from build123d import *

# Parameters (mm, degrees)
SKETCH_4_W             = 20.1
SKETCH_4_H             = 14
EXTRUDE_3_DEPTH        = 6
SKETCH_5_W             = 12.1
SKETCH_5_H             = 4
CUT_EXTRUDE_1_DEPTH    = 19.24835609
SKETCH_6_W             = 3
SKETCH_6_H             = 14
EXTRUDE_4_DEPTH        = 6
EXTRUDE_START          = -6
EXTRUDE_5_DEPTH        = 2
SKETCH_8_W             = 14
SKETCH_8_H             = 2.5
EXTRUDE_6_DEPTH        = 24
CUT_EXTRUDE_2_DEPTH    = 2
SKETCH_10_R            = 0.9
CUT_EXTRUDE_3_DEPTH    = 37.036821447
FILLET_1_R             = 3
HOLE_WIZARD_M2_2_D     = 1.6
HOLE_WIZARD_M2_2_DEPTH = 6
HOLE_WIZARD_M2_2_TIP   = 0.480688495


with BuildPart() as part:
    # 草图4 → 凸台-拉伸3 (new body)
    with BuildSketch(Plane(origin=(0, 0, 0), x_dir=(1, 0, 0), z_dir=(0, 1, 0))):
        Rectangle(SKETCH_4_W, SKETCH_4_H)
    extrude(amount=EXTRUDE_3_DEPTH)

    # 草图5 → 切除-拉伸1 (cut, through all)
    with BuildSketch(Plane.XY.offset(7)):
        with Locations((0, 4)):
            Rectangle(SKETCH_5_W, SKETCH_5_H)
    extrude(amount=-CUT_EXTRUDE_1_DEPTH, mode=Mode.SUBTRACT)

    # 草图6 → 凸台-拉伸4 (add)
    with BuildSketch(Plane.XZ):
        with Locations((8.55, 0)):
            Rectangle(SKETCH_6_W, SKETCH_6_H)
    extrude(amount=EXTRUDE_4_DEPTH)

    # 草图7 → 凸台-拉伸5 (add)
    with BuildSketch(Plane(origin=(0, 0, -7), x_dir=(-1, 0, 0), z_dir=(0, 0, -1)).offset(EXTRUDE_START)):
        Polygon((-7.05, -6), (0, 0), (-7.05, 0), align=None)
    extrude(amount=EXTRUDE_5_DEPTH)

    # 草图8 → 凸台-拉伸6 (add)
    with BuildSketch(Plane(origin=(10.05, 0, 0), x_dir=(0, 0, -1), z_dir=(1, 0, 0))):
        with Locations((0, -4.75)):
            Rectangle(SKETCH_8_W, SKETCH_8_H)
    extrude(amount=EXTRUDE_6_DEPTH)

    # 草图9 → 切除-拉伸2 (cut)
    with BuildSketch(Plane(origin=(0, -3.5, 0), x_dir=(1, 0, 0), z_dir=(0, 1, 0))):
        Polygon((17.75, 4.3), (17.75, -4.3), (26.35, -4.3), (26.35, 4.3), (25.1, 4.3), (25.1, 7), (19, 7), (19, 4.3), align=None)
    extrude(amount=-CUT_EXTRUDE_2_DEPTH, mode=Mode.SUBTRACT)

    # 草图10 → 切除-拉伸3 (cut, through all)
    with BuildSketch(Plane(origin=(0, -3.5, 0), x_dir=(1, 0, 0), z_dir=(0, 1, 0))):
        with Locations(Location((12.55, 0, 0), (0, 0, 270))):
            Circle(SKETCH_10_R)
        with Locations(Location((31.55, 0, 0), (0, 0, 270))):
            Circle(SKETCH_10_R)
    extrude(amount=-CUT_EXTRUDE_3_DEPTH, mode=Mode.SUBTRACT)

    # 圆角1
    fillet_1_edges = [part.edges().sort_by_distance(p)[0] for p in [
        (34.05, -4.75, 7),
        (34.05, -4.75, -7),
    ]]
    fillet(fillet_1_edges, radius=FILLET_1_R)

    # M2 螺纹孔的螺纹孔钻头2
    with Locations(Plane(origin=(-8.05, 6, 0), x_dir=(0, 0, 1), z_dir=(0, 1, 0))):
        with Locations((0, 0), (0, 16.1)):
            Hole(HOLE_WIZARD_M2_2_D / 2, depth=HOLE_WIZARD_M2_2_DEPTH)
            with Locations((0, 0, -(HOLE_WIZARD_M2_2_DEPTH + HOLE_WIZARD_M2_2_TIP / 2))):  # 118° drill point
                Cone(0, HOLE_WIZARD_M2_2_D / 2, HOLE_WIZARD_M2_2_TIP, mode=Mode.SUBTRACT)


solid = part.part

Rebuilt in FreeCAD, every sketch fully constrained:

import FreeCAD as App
import Part
import Sketcher

V = App.Vector
Q = App.Units.Quantity


def edges_at(feature, points):
    """Names of the edges that pass closest to the given points."""
    edges = feature.Shape.Edges
    near = lambda p: min(range(len(edges)), key=lambda i: edges[i].distToShape(Part.Vertex(*p))[0])
    return sorted({f"Edge{near(p) + 1}" for p in points})

doc = App.newDocument("Part")
body = doc.addObject("PartDesign::Body", "Body")

sketch1 = doc.addObject("Sketcher::SketchObject", "Sketch")
body.addObject(sketch1)
sketch1.AttachmentSupport = (doc.XZ_Plane, [""])
sketch1.MapMode = "FlatFace"
sketch1.addGeometry([
    Part.LineSegment(V(-10, -7, 0), V(-10, 7, 0)),
    Part.LineSegment(V(-10, 7, 0), V(10, 7, 0)),
    Part.LineSegment(V(10, 7, 0), V(10, -7, 0)),
    Part.LineSegment(V(10, -7, 0), V(-10, -7, 0)),
], False)
sketch1.addConstraint([
    Sketcher.Constraint("Coincident", 0, 2, 1, 1),
    Sketcher.Constraint("Coincident", 1, 2, 2, 1),
    Sketcher.Constraint("Coincident", 2, 2, 3, 1),
    Sketcher.Constraint("Coincident", 3, 2, 0, 1),
    Sketcher.Constraint("Vertical", 0),
    Sketcher.Constraint("Horizontal", 1),
    Sketcher.Constraint("Vertical", 2),
    Sketcher.Constraint("Horizontal", 3),
    Sketcher.Constraint("Symmetric", 0, 2, 2, 2, -1, 1),
    Sketcher.Constraint("DistanceY", 0, 1, 0, 2, Q("14 mm")),
    Sketcher.Constraint("DistanceX", 1, 1, 1, 2, Q("20.1 mm")),
])
pad1 = doc.addObject("PartDesign::Pad", "Pad")
body.addObject(pad1)
pad1.Profile = sketch1
pad1.Length = 6
pad1.Reversed = True

sketch2 = doc.addObject("Sketcher::SketchObject", "Sketch001")
body.addObject(sketch2)
sketch2.AttachmentSupport = (doc.XY_Plane, [""])
sketch2.MapMode = "FlatFace"
sketch2.AttachmentOffset = App.Placement(V(0, 0, 7), App.Rotation())
sketch2.addGeometry([
    Part.LineSegment(V(-6, 6, 0), V(-6, 2, 0)),
    Part.LineSegment(V(-6, 2, 0), V(6, 2, 0)),
    Part.LineSegment(V(6, 2, 0), V(6, 6, 0)),
    Part.LineSegment(V(6, 6, 0), V(-6, 6, 0)),
], False)
sketch2.addConstraint([
    Sketcher.Constraint("Coincident", 0, 2, 1, 1),
    Sketcher.Constraint("Coincident", 1, 2, 2, 1),
    Sketcher.Constraint("Coincident", 2, 2, 3, 1),
    Sketcher.Constraint("Coincident", 3, 2, 0, 1),
    Sketcher.Constraint("Vertical", 0),
    Sketcher.Constraint("Horizontal", 1),
    Sketcher.Constraint("Vertical", 2),
    Sketcher.Constraint("Horizontal", 3),
    Sketcher.Constraint("DistanceY", 0, 2, 0, 1, Q("4 mm")),
    Sketcher.Constraint("DistanceX", 1, 1, 1, 2, Q("12.1 mm")),
    Sketcher.Constraint("DistanceY", -1, 1, 0, 2, Q("2 mm")),
    Sketcher.Constraint("DistanceX", 0, 2, -1, 1, Q("6.05 mm")),
])
pocket1 = doc.addObject("PartDesign::Pocket", "Pocket")
body.addObject(pocket1)
pocket1.Profile = sketch2
pocket1.Type = "ThroughAll"

sketch3 = doc.addObject("Sketcher::SketchObject", "Sketch002")
body.addObject(sketch3)
sketch3.AttachmentSupport = (doc.XZ_Plane, [""])
sketch3.MapMode = "FlatFace"
sketch3.addGeometry([
    Part.LineSegment(V(7, 7, 0), V(7, -7, 0)),
    Part.LineSegment(V(7, -7, 0), V(10.1, -7, 0)),
    Part.LineSegment(V(10.1, -7, 0), V(10.1, 7, 0)),
    Part.LineSegment(V(10.1, 7, 0), V(7, 7, 0)),
], False)
sketch3.addConstraint([
    Sketcher.Constraint("Coincident", 0, 2, 1, 1),
    Sketcher.Constraint("Coincident", 1, 2, 2, 1),
    Sketcher.Constraint("Coincident", 2, 2, 3, 1),
    Sketcher.Constraint("Coincident", 3, 2, 0, 1),
    Sketcher.Constraint("Vertical", 0),
    Sketcher.Constraint("Horizontal", 1),
    Sketcher.Constraint("Vertical", 2),
    Sketcher.Constraint("Horizontal", 3),
    Sketcher.Constraint("DistanceX", 1, 1, 1, 2, Q("3 mm")),
    Sketcher.Constraint("DistanceY", 0, 2, 0, 1, Q("14 mm")),
    Sketcher.Constraint("DistanceY", 0, 2, -1, 1, Q("7 mm")),
    Sketcher.Constraint("DistanceX", -1, 1, 0, 2, Q("7.05 mm")),
])
pad2 = doc.addObject("PartDesign::Pad", "Pad001")
body.addObject(pad2)
pad2.Profile = sketch3
pad2.Length = 6

sketch4 = doc.addObject("Sketcher::SketchObject", "Sketch003")
body.addObject(sketch4)
sketch4.AttachmentSupport = (doc.XY_Plane, [""])
sketch4.MapMode = "FlatFace"
sketch4.AttachmentOffset = App.Placement(V(0, 0, -1), App.Rotation())
sketch4.addGeometry([
    Part.LineSegment(V(7, -6, 0), V(0, 0, 0)),
    Part.LineSegment(V(0, 0, 0), V(7, 0, 0)),
    Part.LineSegment(V(7, 0, 0), V(7, -6, 0)),
], False)
sketch4.addConstraint([
    Sketcher.Constraint("Coincident", 0, 2, 1, 1),
    Sketcher.Constraint("Coincident", 1, 2, 2, 1),
    Sketcher.Constraint("Coincident", 2, 2, 0, 1),
    Sketcher.Constraint("Horizontal", 1),
    Sketcher.Constraint("Vertical", 2),
    Sketcher.Constraint("Coincident", 0, 2, -1, 1),
    Sketcher.Constraint("DistanceY", 2, 2, 2, 1, Q("6 mm")),
    Sketcher.Constraint("DistanceX", 1, 1, 1, 2, Q("7.05 mm")),
])
pad3 = doc.addObject("PartDesign::Pad", "Pad002")
body.addObject(pad3)
pad3.Profile = sketch4
pad3.Length = 2
pad3.Reversed = True

sketch5 = doc.addObject("Sketcher::SketchObject", "Sketch004")
body.addObject(sketch5)
sketch5.AttachmentSupport = (doc.YZ_Plane, [""])
sketch5.MapMode = "FlatFace"
sketch5.AttachmentOffset = App.Placement(V(0, 0, 10.05), App.Rotation())
sketch5.addGeometry([
    Part.LineSegment(V(-3.5, 7, 0), V(-6, 7, 0)),
    Part.LineSegment(V(-6, 7, 0), V(-6, -7, 0)),
    Part.LineSegment(V(-6, -7, 0), V(-3.5, -7, 0)),
    Part.LineSegment(V(-3.5, -7, 0), V(-3.5, 7, 0)),
], False)
sketch5.addConstraint([
    Sketcher.Constraint("Coincident", 0, 2, 1, 1),
    Sketcher.Constraint("Coincident", 1, 2, 2, 1),
    Sketcher.Constraint("Coincident", 2, 2, 3, 1),
    Sketcher.Constraint("Coincident", 3, 2, 0, 1),
    Sketcher.Constraint("Horizontal", 0),
    Sketcher.Constraint("Vertical", 1),
    Sketcher.Constraint("Horizontal", 2),
    Sketcher.Constraint("Vertical", 3),
    Sketcher.Constraint("DistanceY", 1, 2, 1, 1, Q("14 mm")),
    Sketcher.Constraint("DistanceX", 0, 2, 0, 1, Q("2.5 mm")),
    Sketcher.Constraint("DistanceX", 0, 2, -1, 1, Q("6 mm")),
    Sketcher.Constraint("DistanceY", -1, 1, 0, 2, Q("7 mm")),
])
pad4 = doc.addObject("PartDesign::Pad", "Pad003")
body.addObject(pad4)
pad4.Profile = sketch5
pad4.Length = 24

sketch6 = doc.addObject("Sketcher::SketchObject", "Sketch005")
body.addObject(sketch6)
sketch6.AttachmentSupport = (doc.XZ_Plane, [""])
sketch6.MapMode = "FlatFace"
sketch6.AttachmentOffset = App.Placement(V(0, 0, 3.5), App.Rotation())
sketch6.addGeometry([
    Part.LineSegment(V(17.8, -4.3, 0), V(17.8, 4.3, 0)),
    Part.LineSegment(V(17.8, 4.3, 0), V(26.4, 4.3, 0)),
    Part.LineSegment(V(26.4, 4.3, 0), V(26.4, -4.3, 0)),
    Part.LineSegment(V(26.4, -4.3, 0), V(25.1, -4.3, 0)),
    Part.LineSegment(V(25.1, -4.3, 0), V(25.1, -7, 0)),
    Part.LineSegment(V(25.1, -7, 0), V(19, -7, 0)),
    Part.LineSegment(V(19, -7, 0), V(19, -4.3, 0)),
    Part.LineSegment(V(19, -4.3, 0), V(17.8, -4.3, 0)),
], False)
sketch6.addConstraint([
    Sketcher.Constraint("Coincident", 0, 2, 1, 1),
    Sketcher.Constraint("Coincident", 1, 2, 2, 1),
    Sketcher.Constraint("Coincident", 2, 2, 3, 1),
    Sketcher.Constraint("Coincident", 3, 2, 4, 1),
    Sketcher.Constraint("Coincident", 4, 2, 5, 1),
    Sketcher.Constraint("Coincident", 5, 2, 6, 1),
    Sketcher.Constraint("Coincident", 6, 2, 7, 1),
    Sketcher.Constraint("Coincident", 7, 2, 0, 1),
    Sketcher.Constraint("Vertical", 0),
    Sketcher.Constraint("Horizontal", 1),
    Sketcher.Constraint("Vertical", 2),
    Sketcher.Constraint("Horizontal", 3),
    Sketcher.Constraint("Vertical", 4),
    Sketcher.Constraint("Horizontal", 5),
    Sketcher.Constraint("Vertical", 6),
    Sketcher.Constraint("Horizontal", 7),
    Sketcher.Constraint("Horizontal", 3, 2, 6, 2),
    Sketcher.Constraint("Equal", 3, 7),
    Sketcher.Constraint("Equal", 1, 0),
    Sketcher.Constraint("DistanceX", 1, 1, 1, 2, Q("8.6 mm")),
    Sketcher.Constraint("DistanceX", 5, 2, 5, 1, Q("6.1 mm")),
    Sketcher.Constraint("DistanceY", 4, 2, 4, 1, Q("2.7 mm")),
    Sketcher.Constraint("DistanceY", 4, 2, -1, 1, Q("7 mm")),
    Sketcher.Constraint("DistanceX", -1, 1, 5, 2, Q("19 mm")),
])
pocket2 = doc.addObject("PartDesign::Pocket", "Pocket001")
body.addObject(pocket2)
pocket2.Profile = sketch6
pocket2.Length = 2
pocket2.Reversed = True

sketch7 = doc.addObject("Sketcher::SketchObject", "Sketch006")
body.addObject(sketch7)
sketch7.AttachmentSupport = (doc.XZ_Plane, [""])
sketch7.MapMode = "FlatFace"
sketch7.AttachmentOffset = App.Placement(V(0, 0, 3.5), App.Rotation())
sketch7.addGeometry([
    Part.Circle(V(12.6, 0, 0), V(0, 0, 1), 0.9),
    Part.Circle(V(31.6, 0, 0), V(0, 0, 1), 0.9),
], False)
sketch7.addConstraint([
    Sketcher.Constraint("Equal", 0, 1),
    Sketcher.Constraint("PointOnObject", 0, 3, -1),
    Sketcher.Constraint("PointOnObject", 1, 3, -1),
    Sketcher.Constraint("Diameter", 0, Q("1.8 mm")),
    Sketcher.Constraint("DistanceX", 0, 3, 1, 3, Q("19 mm")),
    Sketcher.Constraint("DistanceX", -1, 1, 0, 3, Q("12.55 mm")),
])
pocket3 = doc.addObject("PartDesign::Pocket", "Pocket002")
body.addObject(pocket3)
pocket3.Profile = sketch7
pocket3.Type = "ThroughAll"
pocket3.Reversed = True
doc.recompute()

fillet = doc.addObject("PartDesign::Fillet", "Fillet")
body.addObject(fillet)
fillet.Base = (pocket3, edges_at(pocket3, [(34.05, -4.75, 7), (34.05, -4.75, -7)]))
fillet.Radius = 3

sketch8 = doc.addObject("Sketcher::SketchObject", "Sketch007")
body.addObject(sketch8)
sketch8.AttachmentSupport = (doc.XZ_Plane, [""])
sketch8.MapMode = "FlatFace"
sketch8.AttachmentOffset = App.Placement(V(0, 0, -6), App.Rotation())
sketch8.addGeometry([
    Part.Circle(V(-8.1, 0, 0), V(0, 0, 1), 0.8),
    Part.Circle(V(8.1, 0, 0), V(0, 0, 1), 0.8),
], False)
sketch8.addConstraint([
    Sketcher.Constraint("Equal", 0, 1),
    Sketcher.Constraint("Symmetric", 0, 3, 1, 3, -1, 1),
    Sketcher.Constraint("PointOnObject", 0, 3, -1),
    Sketcher.Constraint("Diameter", 0, Q("1.6 mm")),
    Sketcher.Constraint("DistanceX", 0, 3, 1, 3, Q("16.1 mm")),
])
doc.recompute()
hole = doc.addObject("PartDesign::Hole", "Hole")
body.addObject(hole)
hole.Profile = sketch8
hole.ThreadType = "None"
hole.Diameter = 1.6
hole.DepthType = "Dimension"
hole.Depth = 6
hole.DrillPoint = "Angled"
hole.DrillPointAngle = 118
hole.Reversed = True

doc.recompute()
